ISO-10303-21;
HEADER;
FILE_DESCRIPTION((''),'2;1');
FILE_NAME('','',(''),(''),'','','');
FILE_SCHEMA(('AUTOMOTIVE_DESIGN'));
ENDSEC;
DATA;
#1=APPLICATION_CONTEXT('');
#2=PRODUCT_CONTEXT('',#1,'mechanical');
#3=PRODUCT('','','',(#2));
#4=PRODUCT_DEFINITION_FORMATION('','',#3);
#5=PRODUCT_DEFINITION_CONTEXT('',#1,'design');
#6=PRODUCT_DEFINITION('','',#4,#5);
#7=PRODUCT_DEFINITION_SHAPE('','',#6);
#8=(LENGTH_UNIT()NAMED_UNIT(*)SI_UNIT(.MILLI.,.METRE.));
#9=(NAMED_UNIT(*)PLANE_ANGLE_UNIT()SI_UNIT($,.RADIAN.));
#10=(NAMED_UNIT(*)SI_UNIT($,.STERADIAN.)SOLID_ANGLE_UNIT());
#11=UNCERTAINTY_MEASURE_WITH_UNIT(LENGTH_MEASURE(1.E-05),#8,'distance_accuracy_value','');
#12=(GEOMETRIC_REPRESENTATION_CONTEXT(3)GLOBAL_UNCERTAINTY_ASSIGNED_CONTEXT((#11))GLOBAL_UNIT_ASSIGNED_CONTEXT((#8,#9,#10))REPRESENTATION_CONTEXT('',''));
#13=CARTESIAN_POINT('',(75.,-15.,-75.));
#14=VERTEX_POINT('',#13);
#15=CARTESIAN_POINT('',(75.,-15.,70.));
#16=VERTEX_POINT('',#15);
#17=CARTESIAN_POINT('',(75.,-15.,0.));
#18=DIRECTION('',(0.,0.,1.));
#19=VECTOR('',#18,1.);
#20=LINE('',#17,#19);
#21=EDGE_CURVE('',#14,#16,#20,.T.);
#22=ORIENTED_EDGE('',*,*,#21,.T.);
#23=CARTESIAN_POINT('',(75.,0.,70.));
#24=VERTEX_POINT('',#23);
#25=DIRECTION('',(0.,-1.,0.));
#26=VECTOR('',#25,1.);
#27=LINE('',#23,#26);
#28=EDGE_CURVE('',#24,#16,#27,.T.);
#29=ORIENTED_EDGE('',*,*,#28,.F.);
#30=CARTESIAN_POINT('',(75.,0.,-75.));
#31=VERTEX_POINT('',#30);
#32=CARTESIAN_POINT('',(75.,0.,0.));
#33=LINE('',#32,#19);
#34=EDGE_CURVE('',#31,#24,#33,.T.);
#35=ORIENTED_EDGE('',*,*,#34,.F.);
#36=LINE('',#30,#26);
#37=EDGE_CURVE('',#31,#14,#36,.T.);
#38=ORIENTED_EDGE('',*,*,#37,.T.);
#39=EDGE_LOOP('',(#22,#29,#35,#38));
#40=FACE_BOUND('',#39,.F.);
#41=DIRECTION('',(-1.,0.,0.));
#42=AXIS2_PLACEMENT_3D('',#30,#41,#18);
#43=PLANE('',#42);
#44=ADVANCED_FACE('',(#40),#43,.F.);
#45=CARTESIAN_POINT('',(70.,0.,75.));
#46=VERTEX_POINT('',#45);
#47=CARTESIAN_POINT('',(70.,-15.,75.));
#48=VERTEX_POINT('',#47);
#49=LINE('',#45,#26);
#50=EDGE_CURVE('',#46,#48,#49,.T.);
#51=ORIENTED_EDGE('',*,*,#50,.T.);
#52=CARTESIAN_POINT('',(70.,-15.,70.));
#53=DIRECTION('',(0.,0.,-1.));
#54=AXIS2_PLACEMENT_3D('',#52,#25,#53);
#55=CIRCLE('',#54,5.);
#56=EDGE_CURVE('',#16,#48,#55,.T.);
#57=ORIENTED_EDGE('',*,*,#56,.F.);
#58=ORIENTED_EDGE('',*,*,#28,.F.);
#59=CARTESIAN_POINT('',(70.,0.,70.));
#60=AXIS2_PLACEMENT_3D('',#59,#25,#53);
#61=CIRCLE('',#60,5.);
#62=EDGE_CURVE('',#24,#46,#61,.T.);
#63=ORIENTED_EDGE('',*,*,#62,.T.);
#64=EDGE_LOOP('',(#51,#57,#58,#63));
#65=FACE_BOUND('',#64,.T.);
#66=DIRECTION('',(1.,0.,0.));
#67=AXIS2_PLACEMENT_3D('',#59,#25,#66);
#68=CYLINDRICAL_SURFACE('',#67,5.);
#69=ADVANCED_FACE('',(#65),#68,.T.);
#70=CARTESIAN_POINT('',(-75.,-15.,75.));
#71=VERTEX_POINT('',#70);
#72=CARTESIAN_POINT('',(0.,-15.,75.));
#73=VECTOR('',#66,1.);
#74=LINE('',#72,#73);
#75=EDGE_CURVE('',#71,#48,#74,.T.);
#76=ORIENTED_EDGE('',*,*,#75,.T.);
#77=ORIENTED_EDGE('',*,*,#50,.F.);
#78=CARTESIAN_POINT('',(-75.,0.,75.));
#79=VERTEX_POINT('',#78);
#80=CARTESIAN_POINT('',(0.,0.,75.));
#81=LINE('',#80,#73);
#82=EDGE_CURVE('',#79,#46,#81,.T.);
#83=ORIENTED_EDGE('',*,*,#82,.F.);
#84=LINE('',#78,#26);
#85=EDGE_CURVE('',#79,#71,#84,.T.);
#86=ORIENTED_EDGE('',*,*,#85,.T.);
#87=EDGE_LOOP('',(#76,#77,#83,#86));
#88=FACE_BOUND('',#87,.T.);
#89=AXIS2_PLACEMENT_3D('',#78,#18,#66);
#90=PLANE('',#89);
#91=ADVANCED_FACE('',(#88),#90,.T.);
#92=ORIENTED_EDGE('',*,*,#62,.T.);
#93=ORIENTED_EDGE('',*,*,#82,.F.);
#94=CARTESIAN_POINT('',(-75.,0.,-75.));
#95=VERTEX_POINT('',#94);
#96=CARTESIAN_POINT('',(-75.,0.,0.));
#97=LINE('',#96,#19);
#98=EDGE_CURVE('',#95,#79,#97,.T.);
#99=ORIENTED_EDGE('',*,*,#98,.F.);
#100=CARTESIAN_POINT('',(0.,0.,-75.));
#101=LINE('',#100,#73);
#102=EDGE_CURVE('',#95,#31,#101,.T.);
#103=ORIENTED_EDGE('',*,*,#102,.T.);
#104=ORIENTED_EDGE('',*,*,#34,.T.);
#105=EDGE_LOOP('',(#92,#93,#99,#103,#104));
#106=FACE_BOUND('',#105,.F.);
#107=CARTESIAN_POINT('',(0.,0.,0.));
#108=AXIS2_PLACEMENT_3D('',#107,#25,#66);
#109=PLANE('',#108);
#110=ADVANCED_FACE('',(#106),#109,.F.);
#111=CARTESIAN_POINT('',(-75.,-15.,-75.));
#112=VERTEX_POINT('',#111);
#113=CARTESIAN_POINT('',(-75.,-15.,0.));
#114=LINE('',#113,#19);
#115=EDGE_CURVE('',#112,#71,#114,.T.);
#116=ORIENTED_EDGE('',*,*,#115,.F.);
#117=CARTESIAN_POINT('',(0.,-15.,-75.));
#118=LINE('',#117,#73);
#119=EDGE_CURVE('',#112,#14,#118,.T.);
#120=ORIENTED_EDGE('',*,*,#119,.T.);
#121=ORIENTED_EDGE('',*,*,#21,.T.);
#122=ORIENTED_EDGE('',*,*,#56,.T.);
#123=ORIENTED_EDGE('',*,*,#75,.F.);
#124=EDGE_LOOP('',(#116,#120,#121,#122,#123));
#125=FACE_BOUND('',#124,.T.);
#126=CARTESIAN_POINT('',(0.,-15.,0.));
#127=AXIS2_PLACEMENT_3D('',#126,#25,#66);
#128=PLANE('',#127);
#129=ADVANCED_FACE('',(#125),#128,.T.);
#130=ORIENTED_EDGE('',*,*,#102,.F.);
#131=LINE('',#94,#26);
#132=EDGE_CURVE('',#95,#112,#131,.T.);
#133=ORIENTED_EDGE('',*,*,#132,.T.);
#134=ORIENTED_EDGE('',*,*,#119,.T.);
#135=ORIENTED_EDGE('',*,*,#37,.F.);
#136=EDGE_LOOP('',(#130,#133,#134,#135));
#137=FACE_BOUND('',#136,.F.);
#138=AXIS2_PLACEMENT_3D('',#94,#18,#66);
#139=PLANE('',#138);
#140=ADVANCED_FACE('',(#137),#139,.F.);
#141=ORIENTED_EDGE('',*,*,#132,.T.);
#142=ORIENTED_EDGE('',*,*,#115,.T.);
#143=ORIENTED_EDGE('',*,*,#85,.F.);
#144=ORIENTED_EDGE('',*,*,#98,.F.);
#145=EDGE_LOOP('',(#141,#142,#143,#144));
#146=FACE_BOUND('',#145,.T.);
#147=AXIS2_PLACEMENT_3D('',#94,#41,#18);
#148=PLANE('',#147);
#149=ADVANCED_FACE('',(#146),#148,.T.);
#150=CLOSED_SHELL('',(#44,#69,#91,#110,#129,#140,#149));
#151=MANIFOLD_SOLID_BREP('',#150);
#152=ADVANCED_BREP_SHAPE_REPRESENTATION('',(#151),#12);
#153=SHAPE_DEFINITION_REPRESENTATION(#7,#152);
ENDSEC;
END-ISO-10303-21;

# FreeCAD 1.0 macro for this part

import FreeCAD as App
import Part
import Sketcher

V = App.Vector
Q = App.Units.Quantity


def edges_at(feature, points):
    """Names of the edges that pass closest to the given points."""
    edges = feature.Shape.Edges
    near = lambda p: min(range(len(edges)), key=lambda i: edges[i].distToShape(Part.Vertex(*p))[0])
    return sorted({f"Edge{near(p) + 1}" for p in points})

doc = App.newDocument("Part")
body = doc.addObject("PartDesign::Body", "Body")

sketch1 = body.newObject("Sketcher::SketchObject", "Sketch")
sketch1.AttachmentSupport = (doc.getObject("XZ_Plane"), [""])
sketch1.MapMode = "FlatFace"
sketch1.addGeometry(Part.LineSegment(V(-75, 75, 0), V(-75, -75, 0)), False)
sketch1.addGeometry(Part.LineSegment(V(-75, -75, 0), V(75, -75, 0)), False)
sketch1.addGeometry(Part.LineSegment(V(75, -75, 0), V(75, 75, 0)), False)
sketch1.addGeometry(Part.LineSegment(V(75, 75, 0), V(-75, 75, 0)), False)
sketch1.addConstraint(Sketcher.Constraint("Coincident", 0, 2, 1, 1))
sketch1.addConstraint(Sketcher.Constraint("Coincident", 1, 2, 2, 1))
sketch1.addConstraint(Sketcher.Constraint("Coincident", 2, 2, 3, 1))
sketch1.addConstraint(Sketcher.Constraint("Coincident", 3, 2, 0, 1))
sketch1.addConstraint(Sketcher.Constraint("Vertical", 0))
sketch1.addConstraint(Sketcher.Constraint("Horizontal", 1))
sketch1.addConstraint(Sketcher.Constraint("Vertical", 2))
sketch1.addConstraint(Sketcher.Constraint("Horizontal", 3))
sketch1.addConstraint(Sketcher.Constraint("Symmetric", 0, 2, 2, 2, -1, 1))
sketch1.addConstraint(Sketcher.Constraint("Equal", 3, 0))
sketch1.addConstraint(Sketcher.Constraint("DistanceX", 1, 1, 1, 2, Q("150 mm")))
pad1 = body.newObject("PartDesign::Pad", "Pad")
pad1.Profile = sketch1
pad1.Length = 15
doc.recompute()

fillet = body.newObject("PartDesign::Fillet", "Fillet")
fillet.Base = (pad1, edges_at(pad1, [(75, -7.5, 75)]))
fillet.Radius = 5

doc.recompute()
